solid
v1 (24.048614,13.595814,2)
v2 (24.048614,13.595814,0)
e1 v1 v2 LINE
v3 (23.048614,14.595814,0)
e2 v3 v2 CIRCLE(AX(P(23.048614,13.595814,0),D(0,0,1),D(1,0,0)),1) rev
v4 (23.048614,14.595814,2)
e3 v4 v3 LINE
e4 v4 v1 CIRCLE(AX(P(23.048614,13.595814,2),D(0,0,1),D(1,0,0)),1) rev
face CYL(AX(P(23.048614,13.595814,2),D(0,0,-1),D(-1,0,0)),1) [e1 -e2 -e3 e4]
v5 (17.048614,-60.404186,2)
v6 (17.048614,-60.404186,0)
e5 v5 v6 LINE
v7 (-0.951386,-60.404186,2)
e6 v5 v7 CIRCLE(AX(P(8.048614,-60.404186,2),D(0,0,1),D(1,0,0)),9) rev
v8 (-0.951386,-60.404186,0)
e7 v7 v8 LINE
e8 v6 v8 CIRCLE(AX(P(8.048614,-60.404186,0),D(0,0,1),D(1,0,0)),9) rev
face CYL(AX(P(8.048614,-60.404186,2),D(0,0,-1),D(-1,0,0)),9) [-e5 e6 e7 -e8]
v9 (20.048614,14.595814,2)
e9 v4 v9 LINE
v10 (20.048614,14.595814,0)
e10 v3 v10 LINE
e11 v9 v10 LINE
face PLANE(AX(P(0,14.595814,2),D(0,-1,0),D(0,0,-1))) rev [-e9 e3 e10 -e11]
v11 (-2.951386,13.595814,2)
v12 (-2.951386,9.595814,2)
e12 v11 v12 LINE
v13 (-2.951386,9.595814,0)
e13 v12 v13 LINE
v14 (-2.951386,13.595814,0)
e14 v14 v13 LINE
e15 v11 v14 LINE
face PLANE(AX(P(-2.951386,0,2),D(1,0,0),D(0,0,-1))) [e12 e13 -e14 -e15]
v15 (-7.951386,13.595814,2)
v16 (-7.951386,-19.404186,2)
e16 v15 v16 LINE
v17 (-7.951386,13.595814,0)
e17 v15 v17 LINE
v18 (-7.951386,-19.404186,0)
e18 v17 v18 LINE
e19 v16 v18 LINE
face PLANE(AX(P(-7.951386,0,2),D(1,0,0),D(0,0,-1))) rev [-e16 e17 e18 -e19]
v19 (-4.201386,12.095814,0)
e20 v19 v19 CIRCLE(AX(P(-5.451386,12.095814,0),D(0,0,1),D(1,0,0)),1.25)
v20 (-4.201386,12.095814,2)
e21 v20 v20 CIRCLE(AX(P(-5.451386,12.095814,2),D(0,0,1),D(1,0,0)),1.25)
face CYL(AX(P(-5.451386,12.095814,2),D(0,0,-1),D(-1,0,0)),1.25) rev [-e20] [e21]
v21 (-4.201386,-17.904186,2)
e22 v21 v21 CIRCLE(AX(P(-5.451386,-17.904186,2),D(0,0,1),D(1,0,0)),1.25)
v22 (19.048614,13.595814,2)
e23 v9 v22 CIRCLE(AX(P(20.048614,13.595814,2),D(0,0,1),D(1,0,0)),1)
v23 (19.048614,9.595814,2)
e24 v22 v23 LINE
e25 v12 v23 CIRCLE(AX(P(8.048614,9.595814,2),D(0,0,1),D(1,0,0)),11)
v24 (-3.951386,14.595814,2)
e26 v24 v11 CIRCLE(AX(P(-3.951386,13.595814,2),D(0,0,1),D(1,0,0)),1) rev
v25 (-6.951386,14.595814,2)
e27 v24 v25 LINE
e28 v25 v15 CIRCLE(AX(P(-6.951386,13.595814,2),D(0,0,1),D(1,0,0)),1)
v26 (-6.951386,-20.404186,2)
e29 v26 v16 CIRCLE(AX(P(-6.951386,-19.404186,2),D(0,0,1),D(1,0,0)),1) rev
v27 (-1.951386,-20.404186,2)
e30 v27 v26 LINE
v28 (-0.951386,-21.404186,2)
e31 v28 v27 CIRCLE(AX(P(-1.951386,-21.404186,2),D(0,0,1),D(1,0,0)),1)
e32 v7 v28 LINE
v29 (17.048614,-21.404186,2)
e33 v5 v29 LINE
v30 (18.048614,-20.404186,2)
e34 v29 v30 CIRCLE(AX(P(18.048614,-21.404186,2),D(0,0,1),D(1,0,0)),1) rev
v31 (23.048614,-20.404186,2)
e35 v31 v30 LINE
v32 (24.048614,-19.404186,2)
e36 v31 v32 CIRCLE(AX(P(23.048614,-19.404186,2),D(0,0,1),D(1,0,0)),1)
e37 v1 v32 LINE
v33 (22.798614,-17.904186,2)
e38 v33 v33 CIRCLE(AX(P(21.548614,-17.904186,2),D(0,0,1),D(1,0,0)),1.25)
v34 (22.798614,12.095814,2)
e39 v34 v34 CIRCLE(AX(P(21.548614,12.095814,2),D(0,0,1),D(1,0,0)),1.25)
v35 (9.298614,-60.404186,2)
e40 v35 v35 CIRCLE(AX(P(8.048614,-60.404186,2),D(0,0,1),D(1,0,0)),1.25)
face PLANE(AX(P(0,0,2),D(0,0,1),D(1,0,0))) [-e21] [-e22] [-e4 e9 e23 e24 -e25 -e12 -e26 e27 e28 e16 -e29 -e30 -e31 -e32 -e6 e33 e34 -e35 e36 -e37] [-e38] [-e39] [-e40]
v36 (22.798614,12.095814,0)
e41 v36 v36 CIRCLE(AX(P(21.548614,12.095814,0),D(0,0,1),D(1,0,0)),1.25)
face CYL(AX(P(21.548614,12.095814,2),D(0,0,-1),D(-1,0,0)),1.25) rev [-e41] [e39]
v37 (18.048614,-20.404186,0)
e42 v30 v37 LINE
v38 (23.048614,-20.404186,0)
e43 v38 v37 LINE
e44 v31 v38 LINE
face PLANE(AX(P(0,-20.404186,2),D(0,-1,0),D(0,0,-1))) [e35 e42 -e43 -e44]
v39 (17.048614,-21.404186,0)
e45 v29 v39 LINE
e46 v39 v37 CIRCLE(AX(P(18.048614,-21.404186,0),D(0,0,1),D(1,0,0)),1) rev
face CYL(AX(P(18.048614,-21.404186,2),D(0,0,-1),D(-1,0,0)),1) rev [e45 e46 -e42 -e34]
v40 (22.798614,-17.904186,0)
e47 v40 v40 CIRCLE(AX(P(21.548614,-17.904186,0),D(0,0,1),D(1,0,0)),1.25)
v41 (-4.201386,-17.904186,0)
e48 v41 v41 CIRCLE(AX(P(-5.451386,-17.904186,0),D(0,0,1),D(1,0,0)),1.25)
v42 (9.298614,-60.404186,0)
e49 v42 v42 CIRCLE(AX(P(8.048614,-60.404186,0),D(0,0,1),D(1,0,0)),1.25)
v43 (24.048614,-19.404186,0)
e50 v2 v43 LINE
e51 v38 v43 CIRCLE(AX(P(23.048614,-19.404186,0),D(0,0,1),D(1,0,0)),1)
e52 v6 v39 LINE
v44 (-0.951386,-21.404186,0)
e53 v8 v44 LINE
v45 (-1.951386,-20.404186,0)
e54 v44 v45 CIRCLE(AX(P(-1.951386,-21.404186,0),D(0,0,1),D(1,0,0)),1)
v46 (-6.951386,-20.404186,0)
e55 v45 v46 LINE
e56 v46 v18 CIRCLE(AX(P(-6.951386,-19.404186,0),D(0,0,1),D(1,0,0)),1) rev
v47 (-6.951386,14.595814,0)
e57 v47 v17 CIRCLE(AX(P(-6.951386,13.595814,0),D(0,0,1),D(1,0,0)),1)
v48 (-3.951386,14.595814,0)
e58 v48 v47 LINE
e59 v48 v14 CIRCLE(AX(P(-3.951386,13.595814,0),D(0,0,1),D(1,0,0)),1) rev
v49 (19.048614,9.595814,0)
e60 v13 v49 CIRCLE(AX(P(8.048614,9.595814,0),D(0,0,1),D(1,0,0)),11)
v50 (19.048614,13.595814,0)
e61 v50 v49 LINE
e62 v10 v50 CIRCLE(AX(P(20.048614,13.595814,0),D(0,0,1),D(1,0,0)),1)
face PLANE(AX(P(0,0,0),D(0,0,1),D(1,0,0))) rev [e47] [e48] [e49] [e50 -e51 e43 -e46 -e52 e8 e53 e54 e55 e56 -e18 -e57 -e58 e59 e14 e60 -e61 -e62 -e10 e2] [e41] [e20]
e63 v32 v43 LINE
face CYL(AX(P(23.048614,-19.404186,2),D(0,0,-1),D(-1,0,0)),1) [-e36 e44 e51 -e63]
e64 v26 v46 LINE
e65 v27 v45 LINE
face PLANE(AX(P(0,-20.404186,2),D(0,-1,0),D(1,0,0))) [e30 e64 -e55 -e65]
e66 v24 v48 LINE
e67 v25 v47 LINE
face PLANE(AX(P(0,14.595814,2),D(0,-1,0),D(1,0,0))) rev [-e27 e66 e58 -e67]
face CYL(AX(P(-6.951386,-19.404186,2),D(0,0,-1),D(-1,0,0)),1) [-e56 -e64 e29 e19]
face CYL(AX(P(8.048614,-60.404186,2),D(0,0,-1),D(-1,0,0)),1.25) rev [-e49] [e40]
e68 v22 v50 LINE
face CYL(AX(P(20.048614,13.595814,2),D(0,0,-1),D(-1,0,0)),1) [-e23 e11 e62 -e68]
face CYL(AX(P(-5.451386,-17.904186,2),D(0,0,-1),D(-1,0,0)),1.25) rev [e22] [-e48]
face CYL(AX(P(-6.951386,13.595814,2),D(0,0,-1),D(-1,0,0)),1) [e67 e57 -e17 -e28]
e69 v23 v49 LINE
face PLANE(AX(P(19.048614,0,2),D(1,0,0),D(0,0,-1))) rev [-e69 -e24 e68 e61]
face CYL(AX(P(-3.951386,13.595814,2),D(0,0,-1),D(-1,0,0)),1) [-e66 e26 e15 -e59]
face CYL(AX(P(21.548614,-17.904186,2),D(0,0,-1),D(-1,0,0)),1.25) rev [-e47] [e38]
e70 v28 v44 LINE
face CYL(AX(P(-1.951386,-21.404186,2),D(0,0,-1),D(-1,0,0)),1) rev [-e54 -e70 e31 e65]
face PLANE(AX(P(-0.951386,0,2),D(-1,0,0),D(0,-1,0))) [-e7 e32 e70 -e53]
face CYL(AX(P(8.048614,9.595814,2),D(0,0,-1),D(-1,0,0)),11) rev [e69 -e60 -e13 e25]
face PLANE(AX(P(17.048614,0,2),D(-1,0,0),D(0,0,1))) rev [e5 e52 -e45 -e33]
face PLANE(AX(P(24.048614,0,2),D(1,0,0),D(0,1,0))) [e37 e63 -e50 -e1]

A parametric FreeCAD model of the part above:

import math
import FreeCAD as App
import Part
import Sketcher

doc = App.newDocument("Part")
body = doc.addObject("PartDesign::Body", "Body")

# Sketch on XY plane
sketch1 = body.newObject("Sketcher::SketchObject", "Sketch")
sketch1.AttachmentSupport = (doc.getObject("XY_Plane"), [""])
sketch1.MapMode = "FlatFace"
sketch1.addGeometry([
    Part.LineSegment(App.Vector(18, -20.4, 0), App.Vector(23, -20.4, 0)),  # 0
    Part.ArcOfCircle(Part.Circle(App.Vector(23, -19.4, 0), App.Vector(0, 0, 1), 1), math.radians(-90), math.radians(0)),  # 1
    Part.LineSegment(App.Vector(24, -19.4, 0), App.Vector(24, 13.6, 0)),  # 2
    Part.ArcOfCircle(Part.Circle(App.Vector(23, 13.6, 0), App.Vector(0, 0, 1), 1), math.radians(0), math.radians(90)),  # 3
    Part.LineSegment(App.Vector(23, 14.6, 0), App.Vector(20, 14.6, 0)),  # 4
    Part.ArcOfCircle(Part.Circle(App.Vector(20, 13.6, 0), App.Vector(0, 0, 1), 1), math.radians(90), math.radians(180)),  # 5
    Part.LineSegment(App.Vector(19, 13.6, 0), App.Vector(19, 9.6, 0)),  # 6
    Part.ArcOfCircle(Part.Circle(App.Vector(8, 9.6, 0), App.Vector(0, 0, 1), 11), math.radians(180), math.radians(360)),  # 7
    Part.LineSegment(App.Vector(-3, 9.6, 0), App.Vector(-3, 13.6, 0)),  # 8
    Part.ArcOfCircle(Part.Circle(App.Vector(-4, 13.6, 0), App.Vector(0, 0, 1), 1), math.radians(0), math.radians(90)),  # 9
    Part.LineSegment(App.Vector(-4, 14.6, 0), App.Vector(-7, 14.6, 0)),  # 10
    Part.ArcOfCircle(Part.Circle(App.Vector(-7, 13.6, 0), App.Vector(0, 0, 1), 1), math.radians(90), math.radians(180)),  # 11
    Part.LineSegment(App.Vector(-8, 13.6, 0), App.Vector(-8, -19.4, 0)),  # 12
    Part.ArcOfCircle(Part.Circle(App.Vector(-7, -19.4, 0), App.Vector(0, 0, 1), 1), math.radians(-180), math.radians(-90)),  # 13
    Part.LineSegment(App.Vector(-7, -20.4, 0), App.Vector(-2, -20.4, 0)),  # 14
    Part.ArcOfCircle(Part.Circle(App.Vector(-2, -21.4, 0), App.Vector(0, 0, 1), 1), math.radians(0), math.radians(90)),  # 15
    Part.LineSegment(App.Vector(-1, -21.4, 0), App.Vector(-1, -60.4, 0)),  # 16
    Part.ArcOfCircle(Part.Circle(App.Vector(8, -60.4, 0), App.Vector(0, 0, 1), 9), math.radians(180), math.radians(360)),  # 17
    Part.LineSegment(App.Vector(17, -60.4, 0), App.Vector(17, -21.4, 0)),  # 18
    Part.ArcOfCircle(Part.Circle(App.Vector(18, -21.4, 0), App.Vector(0, 0, 1), 1), math.radians(90), math.radians(180)),  # 19
    Part.Circle(App.Vector(8, -60.4, 0), App.Vector(0, 0, 1), 1.2),  # 20
    Part.Circle(App.Vector(-5.5, -17.9, 0), App.Vector(0, 0, 1), 1.2),  # 21
    Part.Circle(App.Vector(-5.5, 12.1, 0), App.Vector(0, 0, 1), 1.2),  # 22
    Part.Circle(App.Vector(21.5, -17.9, 0), App.Vector(0, 0, 1), 1.2),  # 23
    Part.Circle(App.Vector(21.5, 12.1, 0), App.Vector(0, 0, 1), 1.2),  # 24
], False)
sketch1.addConstraint([
    Sketcher.Constraint("Tangent", 0, 2, 1, 1),
    Sketcher.Constraint("Tangent", 1, 2, 2, 1),
    Sketcher.Constraint("Tangent", 2, 2, 3, 1),
    Sketcher.Constraint("Tangent", 3, 2, 4, 1),
    Sketcher.Constraint("Tangent", 4, 2, 5, 1),
    Sketcher.Constraint("Tangent", 5, 2, 6, 1),
    Sketcher.Constraint("Tangent", 6, 2, 7, 2),
    Sketcher.Constraint("Tangent", 7, 1, 8, 1),
    Sketcher.Constraint("Tangent", 8, 2, 9, 1),
    Sketcher.Constraint("Tangent", 9, 2, 10, 1),
    Sketcher.Constraint("Tangent", 10, 2, 11, 1),
    Sketcher.Constraint("Tangent", 11, 2, 12, 1),
    Sketcher.Constraint("Tangent", 12, 2, 13, 1),
    Sketcher.Constraint("Tangent", 13, 2, 14, 1),
    Sketcher.Constraint("Tangent", 14, 2, 15, 2),
    Sketcher.Constraint("Tangent", 15, 1, 16, 1),
    Sketcher.Constraint("Tangent", 16, 2, 17, 1),
    Sketcher.Constraint("Tangent", 17, 2, 18, 1),
    Sketcher.Constraint("Tangent", 18, 2, 19, 2),
    Sketcher.Constraint("Tangent", 19, 1, 0, 1),
    Sketcher.Constraint("Horizontal", 0),
    Sketcher.Constraint("Vertical", 2),
    Sketcher.Constraint("Horizontal", 4),
    Sketcher.Constraint("Vertical", 6),
    Sketcher.Constraint("Vertical", 8),
    Sketcher.Constraint("Horizontal", 10),
    Sketcher.Constraint("Vertical", 12),
    Sketcher.Constraint("Horizontal", 14),
    Sketcher.Constraint("Vertical", 16),
    Sketcher.Constraint("Vertical", 18),
    Sketcher.Constraint("Coincident", 20, 3, 17, 3),
    Sketcher.Constraint("Equal", 1, 3),
    Sketcher.Constraint("Equal", 3, 5),
    Sketcher.Constraint("Equal", 5, 9),
    Sketcher.Constraint("Equal", 9, 11),
    Sketcher.Constraint("Equal", 11, 13),
    Sketcher.Constraint("Equal", 13, 15),
    Sketcher.Constraint("Equal", 15, 19),
    Sketcher.Constraint("Equal", 20, 21),
    Sketcher.Constraint("Equal", 21, 22),
    Sketcher.Constraint("Equal", 22, 23),
    Sketcher.Constraint("Equal", 23, 24),
    Sketcher.Constraint("Horizontal", 5, 3, 9, 3),
    Sketcher.Constraint("Horizontal", 1, 3, 13, 3),
    Sketcher.Constraint("Horizontal", 21, 3, 23, 3),
    Sketcher.Constraint("Horizontal", 22, 3, 24, 3),
    Sketcher.Constraint("Vertical", 7, 3, 17, 3),
    Sketcher.Constraint("Vertical", 21, 3, 22, 3),
    Sketcher.Constraint("Vertical", 23, 3, 24, 3),
    Sketcher.Constraint("Equal", 4, 10),
    Sketcher.Constraint("Radius", 1, 1.0),
    Sketcher.Constraint("Radius", 7, 11.0),
    Sketcher.Constraint("Radius", 17, 9.0),
    Sketcher.Constraint("Diameter", 20, 2.5),
    Sketcher.Constraint("DistanceX", 0, 1, 0, 2, 5.0),
    Sketcher.Constraint("DistanceY", 2, 1, 2, 2, 33.0),
    Sketcher.Constraint("DistanceY", 6, 2, 6, 1, 4.0),
    Sketcher.Constraint("DistanceY", 16, 2, 16, 1, 39.0),
    Sketcher.Constraint("DistanceX", 21, 3, 23, 3, 27.0),
    Sketcher.Constraint("DistanceX", 13, 3, 21, 3, 1.5),
    Sketcher.Constraint("DistanceY", 13, 3, 21, 3, 1.5),
    Sketcher.Constraint("DistanceY", 22, 3, 9, 3, 1.5),
    Sketcher.Constraint("DistanceX", -1, 1, 1, 3, 23.048614),
    Sketcher.Constraint("DistanceY", 1, 3, -1, 1, 19.404186),
])
pad1 = body.newObject("PartDesign::Pad", "Pad")
pad1.Profile = sketch1
pad1.Length = 2

doc.recompute()
